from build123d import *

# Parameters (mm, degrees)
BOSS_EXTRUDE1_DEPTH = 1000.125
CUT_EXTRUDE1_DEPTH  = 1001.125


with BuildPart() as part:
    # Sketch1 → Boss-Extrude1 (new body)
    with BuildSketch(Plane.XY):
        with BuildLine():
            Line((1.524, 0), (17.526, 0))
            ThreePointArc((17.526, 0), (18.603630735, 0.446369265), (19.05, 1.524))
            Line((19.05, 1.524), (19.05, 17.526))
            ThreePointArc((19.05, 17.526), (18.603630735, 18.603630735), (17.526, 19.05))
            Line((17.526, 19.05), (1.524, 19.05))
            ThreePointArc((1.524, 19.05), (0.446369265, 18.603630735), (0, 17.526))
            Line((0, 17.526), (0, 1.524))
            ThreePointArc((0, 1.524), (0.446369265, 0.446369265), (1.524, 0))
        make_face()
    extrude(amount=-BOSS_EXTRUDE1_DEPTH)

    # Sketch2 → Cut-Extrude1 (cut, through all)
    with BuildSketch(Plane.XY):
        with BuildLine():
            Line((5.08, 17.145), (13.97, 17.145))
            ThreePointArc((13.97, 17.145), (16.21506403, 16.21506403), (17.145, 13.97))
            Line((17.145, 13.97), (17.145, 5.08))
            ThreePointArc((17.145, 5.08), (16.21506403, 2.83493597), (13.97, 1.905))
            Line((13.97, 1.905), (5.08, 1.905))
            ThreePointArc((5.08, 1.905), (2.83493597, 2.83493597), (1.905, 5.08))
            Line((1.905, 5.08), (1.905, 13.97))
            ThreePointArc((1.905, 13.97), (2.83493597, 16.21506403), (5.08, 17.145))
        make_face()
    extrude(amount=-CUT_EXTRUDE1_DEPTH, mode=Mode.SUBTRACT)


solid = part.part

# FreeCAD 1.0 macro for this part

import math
import FreeCAD as App
import Part
import Sketcher

V = App.Vector
Q = App.Units.Quantity

doc = App.newDocument("Part")
params = doc.addObject("Spreadsheet::Sheet", "Params")
for row, (alias, value) in enumerate([
    ("sketch1_radius", "0.06 in"),
    ("sketch1_width", "0.63 in"),
    ("pad1_length", "39.375 in"),
    ("sketch2_radius", "0.125 in"),
    ("sketch2_width", "0.35 in"),
], start=1):
    params.set(f"A{row}", alias)
    params.set(f"B{row}", "=" + value)
    params.setAlias(f"B{row}", alias)

body = doc.addObject("PartDesign::Body", "Body")

sketch1 = doc.addObject("Sketcher::SketchObject", "Sketch")
body.addObject(sketch1)
sketch1.AttachmentSupport = (doc.XY_Plane, [""])
sketch1.MapMode = "FlatFace"
sketch1.addGeometry([
    Part.LineSegment(V(1.5, 0, 0), V(17.5, 0, 0)),
    Part.ArcOfCircle(Part.Circle(V(17.5, 1.5, 0), V(0, 0, 1), 1.5), math.radians(-90), math.radians(0)),
    Part.LineSegment(V(19.1, 1.5, 0), V(19.1, 17.5, 0)),
    Part.ArcOfCircle(Part.Circle(V(17.5, 17.5, 0), V(0, 0, 1), 1.5), math.radians(0), math.radians(90)),
    Part.LineSegment(V(17.5, 19.1, 0), V(1.5, 19.1, 0)),
    Part.ArcOfCircle(Part.Circle(V(1.5, 17.5, 0), V(0, 0, 1), 1.5), math.radians(90), math.radians(180)),
    Part.LineSegment(V(0, 17.5, 0), V(0, 1.5, 0)),
    Part.ArcOfCircle(Part.Circle(V(1.5, 1.5, 0), V(0, 0, 1), 1.5), math.radians(180), math.radians(270)),
], False)
sketch1.addConstraint([
    Sketcher.Constraint("Tangent", 0, 2, 1, 1),
    Sketcher.Constraint("Tangent", 1, 2, 2, 1),
    Sketcher.Constraint("Tangent", 2, 2, 3, 1),
    Sketcher.Constraint("Tangent", 3, 2, 4, 1),
    Sketcher.Constraint("Tangent", 4, 2, 5, 1),
    Sketcher.Constraint("Tangent", 5, 2, 6, 1),
    Sketcher.Constraint("Tangent", 6, 2, 7, 1),
    Sketcher.Constraint("Tangent", 7, 2, 0, 1),
    Sketcher.Constraint("Horizontal", 0),
    Sketcher.Constraint("Vertical", 2),
    Sketcher.Constraint("Horizontal", 4),
    Sketcher.Constraint("Vertical", 6),
    Sketcher.Constraint("Equal", 1, 3),
    Sketcher.Constraint("Equal", 3, 5),
    Sketcher.Constraint("Equal", 5, 7),
    Sketcher.Constraint("PointOnObject", 0, 2, -1),
    Sketcher.Constraint("PointOnObject", 5, 2, -2),
    Sketcher.Constraint("Equal", 4, 2),
    Sketcher.Constraint("Radius", 1, Q("0.06 in")),
    Sketcher.Constraint("DistanceX", 0, 1, 0, 2, Q("0.63 in")),
])
sketch1.setExpression("Constraints[18]", "Params.sketch1_radius")
sketch1.setExpression("Constraints[19]", "Params.sketch1_width")
pad1 = doc.addObject("PartDesign::Pad", "Pad")
body.addObject(pad1)
pad1.Profile = sketch1
pad1.setExpression("Length", "Params.pad1_length")
pad1.Reversed = True

sketch2 = doc.addObject("Sketcher::SketchObject", "Sketch001")
body.addObject(sketch2)
sketch2.AttachmentSupport = (doc.XY_Plane, [""])
sketch2.MapMode = "FlatFace"
sketch2.addGeometry([
    Part.LineSegment(V(14, 17.1, 0), V(5.1, 17.1, 0)),
    Part.ArcOfCircle(Part.Circle(V(5.1, 14, 0), V(0, 0, 1), 3.2), math.radians(90), math.radians(180)),
    Part.LineSegment(V(1.9, 14, 0), V(1.9, 5.1, 0)),
    Part.ArcOfCircle(Part.Circle(V(5.1, 5.1, 0), V(0, 0, 1), 3.2), math.radians(-180), math.radians(-90)),
    Part.LineSegment(V(5.1, 1.9, 0), V(14, 1.9, 0)),
    Part.ArcOfCircle(Part.Circle(V(14, 5.1, 0), V(0, 0, 1), 3.2), math.radians(-90), math.radians(0)),
    Part.LineSegment(V(17.1, 5.1, 0), V(17.1, 14, 0)),
    Part.ArcOfCircle(Part.Circle(V(14, 14, 0), V(0, 0, 1), 3.2), math.radians(0), math.radians(90)),
], False)
sketch2.addConstraint([
    Sketcher.Constraint("Tangent", 0, 2, 1, 1),
    Sketcher.Constraint("Tangent", 1, 2, 2, 1),
    Sketcher.Constraint("Tangent", 2, 2, 3, 1),
    Sketcher.Constraint("Tangent", 3, 2, 4, 1),
    Sketcher.Constraint("Tangent", 4, 2, 5, 1),
    Sketcher.Constraint("Tangent", 5, 2, 6, 1),
    Sketcher.Constraint("Tangent", 6, 2, 7, 1),
    Sketcher.Constraint("Tangent", 7, 2, 0, 1),
    Sketcher.Constraint("Horizontal", 0),
    Sketcher.Constraint("Vertical", 2),
    Sketcher.Constraint("Horizontal", 4),
    Sketcher.Constraint("Vertical", 6),
    Sketcher.Constraint("Equal", 1, 3),
    Sketcher.Constraint("Equal", 3, 5),
    Sketcher.Constraint("Equal", 5, 7),
    Sketcher.Constraint("Equal", 4, 2),
    Sketcher.Constraint("Radius", 1, Q("0.125 in")),
    Sketcher.Constraint("DistanceX", 0, 2, 0, 1, Q("0.35 in")),
    Sketcher.Constraint("DistanceX", -1, 1, 1, 3, Q("0.2 in")),
    Sketcher.Constraint("DistanceY", -1, 1, 3, 3, Q("0.2 in")),
])
sketch2.setExpression("Constraints[16]", "Params.sketch2_radius")
sketch2.setExpression("Constraints[17]", "Params.sketch2_width")
pocket1 = doc.addObject("PartDesign::Pocket", "Pocket")
body.addObject(pocket1)
pocket1.Profile = sketch2
pocket1.Type = "ThroughAll"

doc.recompute()
